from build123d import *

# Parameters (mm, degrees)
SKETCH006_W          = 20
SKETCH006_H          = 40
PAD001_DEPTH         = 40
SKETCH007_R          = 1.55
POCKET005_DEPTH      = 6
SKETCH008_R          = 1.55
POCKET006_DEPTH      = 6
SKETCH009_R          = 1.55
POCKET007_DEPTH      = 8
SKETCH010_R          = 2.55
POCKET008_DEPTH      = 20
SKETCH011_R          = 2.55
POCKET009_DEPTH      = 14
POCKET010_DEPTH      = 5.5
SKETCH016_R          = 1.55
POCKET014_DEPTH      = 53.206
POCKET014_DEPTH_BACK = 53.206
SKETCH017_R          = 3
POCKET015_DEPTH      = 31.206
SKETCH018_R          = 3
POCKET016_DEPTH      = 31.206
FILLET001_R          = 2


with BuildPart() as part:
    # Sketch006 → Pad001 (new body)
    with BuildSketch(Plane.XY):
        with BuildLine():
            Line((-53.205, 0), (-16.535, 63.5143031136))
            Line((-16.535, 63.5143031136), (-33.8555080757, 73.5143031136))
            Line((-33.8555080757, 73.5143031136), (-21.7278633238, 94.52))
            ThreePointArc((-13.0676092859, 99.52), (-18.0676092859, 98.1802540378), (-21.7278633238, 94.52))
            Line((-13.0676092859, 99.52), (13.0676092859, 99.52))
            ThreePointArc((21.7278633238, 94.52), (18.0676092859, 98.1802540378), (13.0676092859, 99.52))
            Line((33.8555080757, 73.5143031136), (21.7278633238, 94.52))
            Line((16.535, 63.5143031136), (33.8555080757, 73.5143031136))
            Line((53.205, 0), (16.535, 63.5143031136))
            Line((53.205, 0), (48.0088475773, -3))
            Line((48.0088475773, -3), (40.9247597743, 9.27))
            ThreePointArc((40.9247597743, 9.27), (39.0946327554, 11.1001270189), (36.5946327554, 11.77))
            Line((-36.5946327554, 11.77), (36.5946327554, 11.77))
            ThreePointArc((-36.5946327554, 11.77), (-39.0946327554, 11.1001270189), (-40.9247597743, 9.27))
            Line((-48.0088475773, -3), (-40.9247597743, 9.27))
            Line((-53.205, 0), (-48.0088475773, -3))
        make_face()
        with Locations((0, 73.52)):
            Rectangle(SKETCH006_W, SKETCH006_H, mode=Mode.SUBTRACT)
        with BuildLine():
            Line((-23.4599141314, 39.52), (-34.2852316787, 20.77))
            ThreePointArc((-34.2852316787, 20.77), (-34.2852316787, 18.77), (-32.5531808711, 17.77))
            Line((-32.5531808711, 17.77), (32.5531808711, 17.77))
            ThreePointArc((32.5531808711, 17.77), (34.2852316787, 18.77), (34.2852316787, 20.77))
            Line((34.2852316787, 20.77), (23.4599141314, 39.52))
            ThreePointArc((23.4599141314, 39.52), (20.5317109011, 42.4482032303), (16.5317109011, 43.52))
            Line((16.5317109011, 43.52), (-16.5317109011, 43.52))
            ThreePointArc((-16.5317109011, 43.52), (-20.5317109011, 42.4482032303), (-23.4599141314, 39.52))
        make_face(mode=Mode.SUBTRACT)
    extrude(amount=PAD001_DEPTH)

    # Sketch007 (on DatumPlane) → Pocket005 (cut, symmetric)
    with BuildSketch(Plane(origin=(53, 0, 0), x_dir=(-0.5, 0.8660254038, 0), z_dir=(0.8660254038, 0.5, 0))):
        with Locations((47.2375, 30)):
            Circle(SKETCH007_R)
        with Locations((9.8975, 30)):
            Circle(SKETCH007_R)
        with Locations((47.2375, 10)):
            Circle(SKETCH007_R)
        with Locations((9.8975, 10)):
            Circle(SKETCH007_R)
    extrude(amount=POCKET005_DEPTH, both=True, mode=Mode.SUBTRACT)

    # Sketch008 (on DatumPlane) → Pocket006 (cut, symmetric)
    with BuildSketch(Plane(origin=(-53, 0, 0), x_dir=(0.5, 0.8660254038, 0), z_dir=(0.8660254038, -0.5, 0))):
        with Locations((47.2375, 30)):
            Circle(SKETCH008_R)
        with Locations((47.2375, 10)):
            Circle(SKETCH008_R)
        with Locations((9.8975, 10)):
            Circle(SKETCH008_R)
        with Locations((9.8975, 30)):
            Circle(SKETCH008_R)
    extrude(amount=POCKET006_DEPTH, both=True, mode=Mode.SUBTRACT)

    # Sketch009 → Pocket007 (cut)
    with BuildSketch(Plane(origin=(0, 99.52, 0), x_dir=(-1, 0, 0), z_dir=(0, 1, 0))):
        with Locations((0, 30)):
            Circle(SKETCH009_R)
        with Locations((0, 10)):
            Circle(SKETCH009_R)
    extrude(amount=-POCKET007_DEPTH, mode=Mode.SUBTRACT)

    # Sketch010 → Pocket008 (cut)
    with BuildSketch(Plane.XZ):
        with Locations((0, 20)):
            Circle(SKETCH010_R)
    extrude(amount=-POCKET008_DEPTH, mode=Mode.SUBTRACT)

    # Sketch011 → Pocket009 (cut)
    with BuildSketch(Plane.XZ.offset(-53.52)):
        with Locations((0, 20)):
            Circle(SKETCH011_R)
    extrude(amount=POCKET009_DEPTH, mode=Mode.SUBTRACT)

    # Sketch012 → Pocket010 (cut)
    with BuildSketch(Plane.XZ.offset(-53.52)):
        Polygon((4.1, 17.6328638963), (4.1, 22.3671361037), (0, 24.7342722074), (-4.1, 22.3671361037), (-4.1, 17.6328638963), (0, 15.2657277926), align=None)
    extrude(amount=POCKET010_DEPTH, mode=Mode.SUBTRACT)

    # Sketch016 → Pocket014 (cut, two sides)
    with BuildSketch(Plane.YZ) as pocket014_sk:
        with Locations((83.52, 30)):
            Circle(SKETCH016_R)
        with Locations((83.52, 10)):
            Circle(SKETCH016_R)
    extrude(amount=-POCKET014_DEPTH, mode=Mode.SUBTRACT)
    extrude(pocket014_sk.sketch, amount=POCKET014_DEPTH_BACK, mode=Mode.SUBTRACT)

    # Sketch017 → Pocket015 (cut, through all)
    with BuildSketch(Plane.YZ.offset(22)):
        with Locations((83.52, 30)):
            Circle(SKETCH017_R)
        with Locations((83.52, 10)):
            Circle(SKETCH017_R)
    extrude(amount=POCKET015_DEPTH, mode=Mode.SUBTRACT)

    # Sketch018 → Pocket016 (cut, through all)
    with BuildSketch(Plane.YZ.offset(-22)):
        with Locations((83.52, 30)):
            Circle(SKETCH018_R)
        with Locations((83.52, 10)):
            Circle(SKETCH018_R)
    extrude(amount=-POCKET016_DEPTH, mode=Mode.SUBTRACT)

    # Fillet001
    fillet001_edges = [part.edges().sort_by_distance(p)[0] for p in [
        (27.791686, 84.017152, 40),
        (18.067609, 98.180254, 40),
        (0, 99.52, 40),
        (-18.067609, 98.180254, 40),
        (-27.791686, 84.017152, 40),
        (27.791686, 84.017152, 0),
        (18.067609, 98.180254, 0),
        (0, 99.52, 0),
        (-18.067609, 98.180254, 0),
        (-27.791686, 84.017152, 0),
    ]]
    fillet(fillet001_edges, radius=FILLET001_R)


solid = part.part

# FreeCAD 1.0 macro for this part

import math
import FreeCAD as App
import Part
import Sketcher
from FreeCAD import Vector
Q = App.Units.Quantity


def edges_at(feature, points):
    """Names of the edges that pass closest to the given points."""
    edges = feature.Shape.Edges
    near = lambda p: min(range(len(edges)), key=lambda i: edges[i].distToShape(Part.Vertex(*p))[0])
    return sorted({f"Edge{near(p) + 1}" for p in points})

doc = App.newDocument("Part")
params = doc.addObject("Spreadsheet::Sheet", "Params")
for row, (alias, value) in enumerate([
    ("sketch1_radius", "5 mm"),
    ("sketch1_radius2", "10 mm"),
    ("sketch1_radius3", "8 mm"),
    ("sketch1_radius4", "2 mm"),
    ("sketch1_width", "20 mm"),
    ("pad1_length", "40 mm"),
    ("sketch2_diameter", "3.1 mm"),
    ("pocket1_length", "12 mm"),
    ("sketch3_diameter", "3.1 mm"),
    ("pocket2_length", "12 mm"),
    ("sketch4_diameter", "3.1 mm"),
    ("pocket3_length", "8 mm"),
    ("sketch5_diameter", "5.1 mm"),
    ("pocket4_length", "20 mm"),
    ("sketch6_diameter", "5.1 mm"),
    ("pocket5_length", "14 mm"),
    ("pocket6_length", "5.5 mm"),
    ("sketch8_diameter", "3.1 mm"),
    ("sketch9_diameter", "6 mm"),
    ("sketch10_diameter", "6 mm"),
    ("fillet_radius", "2 mm"),
], start=1):
    params.set(f"A{row}", alias)
    params.set(f"B{row}", "=" + value)
    params.setAlias(f"B{row}", alias)

body = doc.addObject("PartDesign::Body", "Body")

sketch1 = body.newObject("Sketcher::SketchObject", "Sketch")
sketch1.AttachmentSupport = (doc.getObject("XY_Plane"), [""])
sketch1.MapMode = "FlatFace"
sketch1.addGeometry([
    Part.LineSegment(Vector(-16.5, 63.5, 0), Vector(-53.2, 0, 0)),
    Part.LineSegment(Vector(-53.2, 0, 0), Vector(-48, -3, 0)),
    Part.LineSegment(Vector(-48, -3, 0), Vector(-40.9, 9.3, 0)),
    Part.ArcOfCircle(Part.Circle(Vector(-36.6, 6.8, 0), Vector(0, 0, 1), 5), math.radians(90), math.radians(150)),
    Part.LineSegment(Vector(-36.6, 11.8, 0), Vector(36.6, 11.8, 0)),
    Part.ArcOfCircle(Part.Circle(Vector(36.6, 6.8, 0), Vector(0, 0, 1), 5), math.radians(30), math.radians(90)),
    Part.LineSegment(Vector(40.9, 9.3, 0), Vector(48, -3, 0)),
    Part.LineSegment(Vector(48, -3, 0), Vector(53.2, 0, 0)),
    Part.LineSegment(Vector(53.2, 0, 0), Vector(16.5, 63.5, 0)),
    Part.LineSegment(Vector(16.5, 63.5, 0), Vector(33.9, 73.5, 0)),
    Part.LineSegment(Vector(33.9, 73.5, 0), Vector(21.7, 94.5, 0)),
    Part.ArcOfCircle(Part.Circle(Vector(13.1, 89.5, 0), Vector(0, 0, 1), 10), math.radians(30), math.radians(90)),
    Part.LineSegment(Vector(13.1, 99.5, 0), Vector(-13.1, 99.5, 0)),
    Part.ArcOfCircle(Part.Circle(Vector(-13.1, 89.5, 0), Vector(0, 0, 1), 10), math.radians(90), math.radians(150)),
    Part.LineSegment(Vector(-21.7, 94.5, 0), Vector(-33.9, 73.5, 0)),
    Part.LineSegment(Vector(-33.9, 73.5, 0), Vector(-16.5, 63.5, 0)),
    Part.ArcOfCircle(Part.Circle(Vector(-16.5, 35.5, 0), Vector(0, 0, 1), 8), math.radians(90), math.radians(150)),
    Part.LineSegment(Vector(-16.5, 43.5, 0), Vector(16.5, 43.5, 0)),
    Part.ArcOfCircle(Part.Circle(Vector(16.5, 35.5, 0), Vector(0, 0, 1), 8), math.radians(30), math.radians(90)),
    Part.LineSegment(Vector(23.5, 39.5, 0), Vector(34.3, 20.8, 0)),
    Part.ArcOfCircle(Part.Circle(Vector(32.6, 19.8, 0), Vector(0, 0, 1), 2), math.radians(-90), math.radians(30)),
    Part.LineSegment(Vector(32.6, 17.8, 0), Vector(-32.6, 17.8, 0)),
    Part.ArcOfCircle(Part.Circle(Vector(-32.6, 19.8, 0), Vector(0, 0, 1), 2), math.radians(150), math.radians(270)),
    Part.LineSegment(Vector(-34.3, 20.8, 0), Vector(-23.5, 39.5, 0)),
    Part.LineSegment(Vector(-10, 53.5, 0), Vector(-10, 93.5, 0)),
    Part.LineSegment(Vector(-10, 93.5, 0), Vector(10, 93.5, 0)),
    Part.LineSegment(Vector(10, 93.5, 0), Vector(10, 53.5, 0)),
    Part.LineSegment(Vector(10, 53.5, 0), Vector(-10, 53.5, 0)),
], False)
sketch1.addConstraint([
    Sketcher.Constraint("Coincident", 0, 2, 1, 1),
    Sketcher.Constraint("Coincident", 1, 2, 2, 1),
    Sketcher.Constraint("Tangent", 2, 2, 3, 2),
    Sketcher.Constraint("Tangent", 3, 1, 4, 1),
    Sketcher.Constraint("Tangent", 4, 2, 5, 2),
    Sketcher.Constraint("Tangent", 5, 1, 6, 1),
    Sketcher.Constraint("Coincident", 6, 2, 7, 1),
    Sketcher.Constraint("Coincident", 7, 2, 8, 1),
    Sketcher.Constraint("Coincident", 8, 2, 9, 1),
    Sketcher.Constraint("Coincident", 9, 2, 10, 1),
    Sketcher.Constraint("Tangent", 10, 2, 11, 1),
    Sketcher.Constraint("Tangent", 11, 2, 12, 1),
    Sketcher.Constraint("Tangent", 12, 2, 13, 1),
    Sketcher.Constraint("Tangent", 13, 2, 14, 1),
    Sketcher.Constraint("Coincident", 14, 2, 15, 1),
    Sketcher.Constraint("Coincident", 15, 2, 0, 1),
    Sketcher.Constraint("Tangent", 16, 1, 17, 1),
    Sketcher.Constraint("Tangent", 17, 2, 18, 2),
    Sketcher.Constraint("Tangent", 18, 1, 19, 1),
    Sketcher.Constraint("Tangent", 19, 2, 20, 2),
    Sketcher.Constraint("Tangent", 20, 1, 21, 1),
    Sketcher.Constraint("Tangent", 21, 2, 22, 2),
    Sketcher.Constraint("Tangent", 22, 1, 23, 1),
    Sketcher.Constraint("Tangent", 23, 2, 16, 2),
    Sketcher.Constraint("Coincident", 24, 2, 25, 1),
    Sketcher.Constraint("Coincident", 25, 2, 26, 1),
    Sketcher.Constraint("Coincident", 26, 2, 27, 1),
    Sketcher.Constraint("Coincident", 27, 2, 24, 1),
    Sketcher.Constraint("Horizontal", 4),
    Sketcher.Constraint("Horizontal", 12),
    Sketcher.Constraint("Horizontal", 17),
    Sketcher.Constraint("Horizontal", 21),
    Sketcher.Constraint("Vertical", 24),
    Sketcher.Constraint("Horizontal", 25),
    Sketcher.Constraint("Vertical", 26),
    Sketcher.Constraint("Horizontal", 27),
    Sketcher.Constraint("Equal", 3, 5),
    Sketcher.Constraint("Equal", 11, 13),
    Sketcher.Constraint("Equal", 16, 18),
    Sketcher.Constraint("Equal", 20, 22),
    Sketcher.Constraint("Symmetric", 0, 2, 7, 2, -1, 1),
    Sketcher.Constraint("Symmetric", 2, 2, 5, 1, -2),
    Sketcher.Constraint("Symmetric", 10, 2, 13, 2, -2),
    Sketcher.Constraint("Symmetric", 8, 2, 15, 2, -2),
    Sketcher.Constraint("Symmetric", 19, 2, 22, 1, -2),
    Sketcher.Constraint("PointOnObject", 0, 2, -1),
    Sketcher.Constraint("Perpendicular", 0, 1),
    Sketcher.Constraint("Perpendicular", 1, 2),
    Sketcher.Constraint("Perpendicular", 6, 7),
    Sketcher.Constraint("Perpendicular", 8, 9),
    Sketcher.Constraint("Perpendicular", 9, 10),
    Sketcher.Constraint("Perpendicular", 14, 15),
    Sketcher.Constraint("Parallel", 10, 19),
    Sketcher.Constraint("Radius", 3, Q("5 mm")),
    Sketcher.Constraint("Radius", 11, Q("10 mm")),
    Sketcher.Constraint("Radius", 16, Q("8 mm")),
    Sketcher.Constraint("Radius", 20, Q("2 mm")),
    Sketcher.Constraint("DistanceX", 25, 1, 25, 2, Q("20 mm")),
    Sketcher.Constraint("DistanceY", 24, 1, 24, 2, Q("40 mm")),
    Sketcher.Constraint("Angle", 0, Q("-120 deg")),
    Sketcher.Constraint("Distance", 1, Q("6 mm")),
    Sketcher.Constraint("Distance", 9, Q("20 mm")),
    Sketcher.Constraint("DistanceX", 24, 2, -1, 1, Q("10 mm")),
    Sketcher.Constraint("DistanceY", 16, 3, 13, 3, Q("54 mm")),
    Sketcher.Constraint("DistanceY", 5, 3, 20, 3, Q("13 mm")),
    Sketcher.Constraint("DistanceY", 13, 3, 24, 2, Q("4 mm")),
    Sketcher.Constraint("Distance", 0, Q("73.34 mm")),
    Sketcher.Constraint("DistanceY", -1, 1, 3, 3, Q("6.77 mm")),
    Sketcher.Constraint("DistanceY", -1, 1, 11, 3, Q("89.52 mm")),
    Sketcher.Constraint("DistanceX", 15, 2, 8, 2, Q("33.07 mm")),
    Sketcher.Constraint("DistanceX", 17, 1, 17, 2, Q("33.063422 mm")),
])
sketch1.setExpression("Constraints[53]", "Params.sketch1_radius")
sketch1.setExpression("Constraints[54]", "Params.sketch1_radius2")
sketch1.setExpression("Constraints[55]", "Params.sketch1_radius3")
sketch1.setExpression("Constraints[56]", "Params.sketch1_radius4")
sketch1.setExpression("Constraints[57]", "Params.sketch1_width")
pad1 = body.newObject("PartDesign::Pad", "Pad")
pad1.Profile = sketch1
pad1.setExpression("Length", "Params.pad1_length")

sketch2 = body.newObject("Sketcher::SketchObject", "Sketch001")
sketch2.Placement = App.Placement(Vector(53, 0, 0), App.Rotation(Vector(-0.5, 0.866025404, 0), Vector(0, 0, 1), Vector(0.866025404, 0.5, 0), "ZXY"))
sketch2.addGeometry([
    Part.Circle(Vector(47.2, 30, 0), Vector(0, 0, 1), 1.6),
    Part.Circle(Vector(9.9, 30, 0), Vector(0, 0, 1), 1.6),
    Part.Circle(Vector(47.2, 10, 0), Vector(0, 0, 1), 1.6),
    Part.Circle(Vector(9.9, 10, 0), Vector(0, 0, 1), 1.6),
], False)
sketch2.addConstraint([
    Sketcher.Constraint("Equal", 0, 1),
    Sketcher.Constraint("Equal", 1, 2),
    Sketcher.Constraint("Equal", 2, 3),
    Sketcher.Constraint("Horizontal", 0, 3, 1, 3),
    Sketcher.Constraint("Horizontal", 2, 3, 3, 3),
    Sketcher.Constraint("Vertical", 0, 3, 2, 3),
    Sketcher.Constraint("Vertical", 1, 3, 3, 3),
    Sketcher.Constraint("Diameter", 0, Q("3.1 mm")),
    Sketcher.Constraint("DistanceY", -1, 1, 0, 3, Q("30 mm")),
    Sketcher.Constraint("DistanceY", -1, 1, 2, 3, Q("10 mm")),
    Sketcher.Constraint("DistanceX", 1, 3, 0, 3, Q("37.34 mm")),
    Sketcher.Constraint("DistanceX", -1, 1, 0, 3, Q("47.2375 mm")),
])
sketch2.setExpression("Constraints[7]", "Params.sketch2_diameter")
pocket1 = body.newObject("PartDesign::Pocket", "Pocket")
pocket1.Profile = sketch2
pocket1.setExpression("Length", "Params.pocket1_length")
pocket1.Midplane = True

sketch3 = body.newObject("Sketcher::SketchObject", "Sketch002")
sketch3.Placement = App.Placement(Vector(-53, 0, 0), App.Rotation(Vector(0.5, 0.866025404, 0), Vector(0, 0, 1), Vector(0.866025404, -0.5, 0), "ZXY"))
sketch3.addGeometry([
    Part.Circle(Vector(47.2, 30, 0), Vector(0, 0, 1), 1.6),
    Part.Circle(Vector(47.2, 10, 0), Vector(0, 0, 1), 1.6),
    Part.Circle(Vector(9.9, 10, 0), Vector(0, 0, 1), 1.6),
    Part.Circle(Vector(9.9, 30, 0), Vector(0, 0, 1), 1.6),
], False)
sketch3.addConstraint([
    Sketcher.Constraint("Equal", 0, 1),
    Sketcher.Constraint("Equal", 1, 2),
    Sketcher.Constraint("Equal", 2, 3),
    Sketcher.Constraint("Horizontal", 1, 3, 2, 3),
    Sketcher.Constraint("Horizontal", 0, 3, 3, 3),
    Sketcher.Constraint("Vertical", 0, 3, 1, 3),
    Sketcher.Constraint("Vertical", 2, 3, 3, 3),
    Sketcher.Constraint("Diameter", 0, Q("3.1 mm")),
    Sketcher.Constraint("DistanceY", -1, 1, 0, 3, Q("30 mm")),
    Sketcher.Constraint("DistanceY", -1, 1, 1, 3, Q("10 mm")),
    Sketcher.Constraint("DistanceX", 2, 3, 1, 3, Q("37.34 mm")),
    Sketcher.Constraint("DistanceX", -1, 1, 0, 3, Q("47.2375 mm")),
])
sketch3.setExpression("Constraints[7]", "Params.sketch3_diameter")
pocket2 = body.newObject("PartDesign::Pocket", "Pocket001")
pocket2.Profile = sketch3
pocket2.setExpression("Length", "Params.pocket2_length")
pocket2.Midplane = True

sketch4 = body.newObject("Sketcher::SketchObject", "Sketch003")
sketch4.AttachmentSupport = (doc.getObject("XZ_Plane"), [""])
sketch4.MapMode = "FlatFace"
sketch4.AttachmentOffset = App.Placement(Vector(0, 0, -99.52), App.Rotation())
sketch4.addGeometry([
    Part.Circle(Vector(0, 30, 0), Vector(0, 0, 1), 1.6),
    Part.Circle(Vector(0, 10, 0), Vector(0, 0, 1), 1.6),
], False)
sketch4.addConstraint([
    Sketcher.Constraint("Equal", 0, 1),
    Sketcher.Constraint("PointOnObject", 0, 3, -2),
    Sketcher.Constraint("PointOnObject", 1, 3, -2),
    Sketcher.Constraint("Diameter", 0, Q("3.1 mm")),
    Sketcher.Constraint("DistanceY", -1, 1, 0, 3, Q("30 mm")),
    Sketcher.Constraint("DistanceY", -1, 1, 1, 3, Q("10 mm")),
])
sketch4.setExpression("Constraints[3]", "Params.sketch4_diameter")
pocket3 = body.newObject("PartDesign::Pocket", "Pocket002")
pocket3.Profile = sketch4
pocket3.setExpression("Length", "Params.pocket3_length")
pocket3.Reversed = True

sketch5 = body.newObject("Sketcher::SketchObject", "Sketch004")
sketch5.AttachmentSupport = (doc.getObject("XZ_Plane"), [""])
sketch5.MapMode = "FlatFace"
sketch5.addGeometry(Part.Circle(Vector(0, 20, 0), Vector(0, 0, 1), 2.5), False)
sketch5.addConstraint([
    Sketcher.Constraint("PointOnObject", 0, 3, -2),
    Sketcher.Constraint("Diameter", 0, Q("5.1 mm")),
    Sketcher.Constraint("DistanceY", -1, 1, 0, 3, Q("20 mm")),
])
sketch5.setExpression("Constraints[1]", "Params.sketch5_diameter")
pocket4 = body.newObject("PartDesign::Pocket", "Pocket003")
pocket4.Profile = sketch5
pocket4.setExpression("Length", "Params.pocket4_length")

sketch6 = body.newObject("Sketcher::SketchObject", "Sketch005")
sketch6.AttachmentSupport = (doc.getObject("XZ_Plane"), [""])
sketch6.MapMode = "FlatFace"
sketch6.AttachmentOffset = App.Placement(Vector(0, 0, -53.52), App.Rotation())
sketch6.addGeometry(Part.Circle(Vector(0, 20, 0), Vector(0, 0, 1), 2.5), False)
sketch6.addConstraint([
    Sketcher.Constraint("PointOnObject", 0, 3, -2),
    Sketcher.Constraint("Diameter", 0, Q("5.1 mm")),
    Sketcher.Constraint("DistanceY", -1, 1, 0, 3, Q("20 mm")),
])
sketch6.setExpression("Constraints[1]", "Params.sketch6_diameter")
pocket5 = body.newObject("PartDesign::Pocket", "Pocket004")
pocket5.Profile = sketch6
pocket5.setExpression("Length", "Params.pocket5_length")
pocket5.Reversed = True

sketch7 = body.newObject("Sketcher::SketchObject", "Sketch006")
sketch7.AttachmentSupport = (doc.getObject("XZ_Plane"), [""])
sketch7.MapMode = "FlatFace"
sketch7.AttachmentOffset = App.Placement(Vector(0, 0, -53.52), App.Rotation())
sketch7.addGeometry([
    Part.LineSegment(Vector(4.1, 17.6, 0), Vector(4.1, 22.4, 0)),
    Part.LineSegment(Vector(4.1, 22.4, 0), Vector(0, 24.7, 0)),
    Part.LineSegment(Vector(0, 24.7, 0), Vector(-4.1, 22.4, 0)),
    Part.LineSegment(Vector(-4.1, 22.4, 0), Vector(-4.1, 17.6, 0)),
    Part.LineSegment(Vector(-4.1, 17.6, 0), Vector(0, 15.3, 0)),
    Part.LineSegment(Vector(0, 15.3, 0), Vector(4.1, 17.6, 0)),
], False)
sketch7.addConstraint([
    Sketcher.Constraint("Coincident", 0, 2, 1, 1),
    Sketcher.Constraint("Coincident", 1, 2, 2, 1),
    Sketcher.Constraint("Coincident", 2, 2, 3, 1),
    Sketcher.Constraint("Coincident", 3, 2, 4, 1),
    Sketcher.Constraint("Coincident", 4, 2, 5, 1),
    Sketcher.Constraint("Coincident", 5, 2, 0, 1),
    Sketcher.Constraint("Vertical", 0),
    Sketcher.Constraint("Vertical", 3),
    Sketcher.Constraint("Symmetric", 0, 2, 2, 2, -2),
    Sketcher.Constraint("PointOnObject", 1, 2, -2),
    Sketcher.Constraint("PointOnObject", 4, 2, -2),
    Sketcher.Constraint("Parallel", 1, 4),
    Sketcher.Constraint("Parallel", 2, 5),
    Sketcher.Constraint("Angle", 1, Q("150 deg")),
    Sketcher.Constraint("DistanceX", -1, 1, 0, 2, Q("4.1 mm")),
    Sketcher.Constraint("DistanceY", 0, 1, 0, 2, Q("4.734272 mm")),
    Sketcher.Constraint("DistanceY", -1, 1, 0, 2, Q("22.367136 mm")),
])
pocket6 = body.newObject("PartDesign::Pocket", "Pocket005")
pocket6.Profile = sketch7
pocket6.setExpression("Length", "Params.pocket6_length")
pocket6.Reversed = True

sketch8 = body.newObject("Sketcher::SketchObject", "Sketch007")
sketch8.AttachmentSupport = (doc.getObject("YZ_Plane"), [""])
sketch8.MapMode = "FlatFace"
sketch8.addGeometry([
    Part.Circle(Vector(83.5, 30, 0), Vector(0, 0, 1), 1.6),
    Part.Circle(Vector(83.5, 10, 0), Vector(0, 0, 1), 1.6),
], False)
sketch8.addConstraint([
    Sketcher.Constraint("Equal", 0, 1),
    Sketcher.Constraint("Vertical", 0, 3, 1, 3),
    Sketcher.Constraint("Diameter", 0, Q("3.1 mm")),
    Sketcher.Constraint("DistanceY", -1, 1, 0, 3, Q("30 mm")),
    Sketcher.Constraint("DistanceY", -1, 1, 1, 3, Q("10 mm")),
    Sketcher.Constraint("DistanceX", -1, 1, 0, 3, Q("83.52 mm")),
])
sketch8.setExpression("Constraints[2]", "Params.sketch8_diameter")
pocket7 = body.newObject("PartDesign::Pocket", "Pocket006")
pocket7.Profile = sketch8
pocket7.Type = "ThroughAll"
pocket7.Midplane = True

sketch9 = body.newObject("Sketcher::SketchObject", "Sketch008")
sketch9.AttachmentSupport = (doc.getObject("YZ_Plane"), [""])
sketch9.MapMode = "FlatFace"
sketch9.AttachmentOffset = App.Placement(Vector(0, 0, 22), App.Rotation())
sketch9.addGeometry([
    Part.Circle(Vector(83.5, 30, 0), Vector(0, 0, 1), 3),
    Part.Circle(Vector(83.5, 10, 0), Vector(0, 0, 1), 3),
], False)
sketch9.addConstraint([
    Sketcher.Constraint("Equal", 0, 1),
    Sketcher.Constraint("Vertical", 0, 3, 1, 3),
    Sketcher.Constraint("Diameter", 0, Q("6 mm")),
    Sketcher.Constraint("DistanceY", -1, 1, 0, 3, Q("30 mm")),
    Sketcher.Constraint("DistanceY", -1, 1, 1, 3, Q("10 mm")),
    Sketcher.Constraint("DistanceX", -1, 1, 0, 3, Q("83.52 mm")),
])
sketch9.setExpression("Constraints[2]", "Params.sketch9_diameter")
pocket8 = body.newObject("PartDesign::Pocket", "Pocket007")
pocket8.Profile = sketch9
pocket8.Type = "ThroughAll"
pocket8.Reversed = True

sketch10 = body.newObject("Sketcher::SketchObject", "Sketch009")
sketch10.AttachmentSupport = (doc.getObject("YZ_Plane"), [""])
sketch10.MapMode = "FlatFace"
sketch10.AttachmentOffset = App.Placement(Vector(0, 0, -22), App.Rotation())
sketch10.addGeometry([
    Part.Circle(Vector(83.5, 30, 0), Vector(0, 0, 1), 3),
    Part.Circle(Vector(83.5, 10, 0), Vector(0, 0, 1), 3),
], False)
sketch10.addConstraint([
    Sketcher.Constraint("Equal", 0, 1),
    Sketcher.Constraint("Vertical", 0, 3, 1, 3),
    Sketcher.Constraint("Diameter", 0, Q("6 mm")),
    Sketcher.Constraint("DistanceY", -1, 1, 0, 3, Q("30 mm")),
    Sketcher.Constraint("DistanceY", -1, 1, 1, 3, Q("10 mm")),
    Sketcher.Constraint("DistanceX", -1, 1, 0, 3, Q("83.52 mm")),
])
sketch10.setExpression("Constraints[2]", "Params.sketch10_diameter")
pocket9 = body.newObject("PartDesign::Pocket", "Pocket008")
pocket9.Profile = sketch10
pocket9.Type = "ThroughAll"
doc.recompute()

fillet = body.newObject("PartDesign::Fillet", "Fillet")
fillet.Base = (pocket9, edges_at(pocket9, [
    (27.792, 84.017, 40),
    (18.068, 98.18, 40),
    (0, 99.52, 40),
    (-18.068, 98.18, 40),
    (-27.792, 84.017, 40),
    (27.792, 84.017, 0),
    (18.068, 98.18, 0),
    (0, 99.52, 0),
    (-18.068, 98.18, 0),
    (-27.792, 84.017, 0),
]))
fillet.setExpression("Radius", "Params.fillet_radius")

doc.recompute()
